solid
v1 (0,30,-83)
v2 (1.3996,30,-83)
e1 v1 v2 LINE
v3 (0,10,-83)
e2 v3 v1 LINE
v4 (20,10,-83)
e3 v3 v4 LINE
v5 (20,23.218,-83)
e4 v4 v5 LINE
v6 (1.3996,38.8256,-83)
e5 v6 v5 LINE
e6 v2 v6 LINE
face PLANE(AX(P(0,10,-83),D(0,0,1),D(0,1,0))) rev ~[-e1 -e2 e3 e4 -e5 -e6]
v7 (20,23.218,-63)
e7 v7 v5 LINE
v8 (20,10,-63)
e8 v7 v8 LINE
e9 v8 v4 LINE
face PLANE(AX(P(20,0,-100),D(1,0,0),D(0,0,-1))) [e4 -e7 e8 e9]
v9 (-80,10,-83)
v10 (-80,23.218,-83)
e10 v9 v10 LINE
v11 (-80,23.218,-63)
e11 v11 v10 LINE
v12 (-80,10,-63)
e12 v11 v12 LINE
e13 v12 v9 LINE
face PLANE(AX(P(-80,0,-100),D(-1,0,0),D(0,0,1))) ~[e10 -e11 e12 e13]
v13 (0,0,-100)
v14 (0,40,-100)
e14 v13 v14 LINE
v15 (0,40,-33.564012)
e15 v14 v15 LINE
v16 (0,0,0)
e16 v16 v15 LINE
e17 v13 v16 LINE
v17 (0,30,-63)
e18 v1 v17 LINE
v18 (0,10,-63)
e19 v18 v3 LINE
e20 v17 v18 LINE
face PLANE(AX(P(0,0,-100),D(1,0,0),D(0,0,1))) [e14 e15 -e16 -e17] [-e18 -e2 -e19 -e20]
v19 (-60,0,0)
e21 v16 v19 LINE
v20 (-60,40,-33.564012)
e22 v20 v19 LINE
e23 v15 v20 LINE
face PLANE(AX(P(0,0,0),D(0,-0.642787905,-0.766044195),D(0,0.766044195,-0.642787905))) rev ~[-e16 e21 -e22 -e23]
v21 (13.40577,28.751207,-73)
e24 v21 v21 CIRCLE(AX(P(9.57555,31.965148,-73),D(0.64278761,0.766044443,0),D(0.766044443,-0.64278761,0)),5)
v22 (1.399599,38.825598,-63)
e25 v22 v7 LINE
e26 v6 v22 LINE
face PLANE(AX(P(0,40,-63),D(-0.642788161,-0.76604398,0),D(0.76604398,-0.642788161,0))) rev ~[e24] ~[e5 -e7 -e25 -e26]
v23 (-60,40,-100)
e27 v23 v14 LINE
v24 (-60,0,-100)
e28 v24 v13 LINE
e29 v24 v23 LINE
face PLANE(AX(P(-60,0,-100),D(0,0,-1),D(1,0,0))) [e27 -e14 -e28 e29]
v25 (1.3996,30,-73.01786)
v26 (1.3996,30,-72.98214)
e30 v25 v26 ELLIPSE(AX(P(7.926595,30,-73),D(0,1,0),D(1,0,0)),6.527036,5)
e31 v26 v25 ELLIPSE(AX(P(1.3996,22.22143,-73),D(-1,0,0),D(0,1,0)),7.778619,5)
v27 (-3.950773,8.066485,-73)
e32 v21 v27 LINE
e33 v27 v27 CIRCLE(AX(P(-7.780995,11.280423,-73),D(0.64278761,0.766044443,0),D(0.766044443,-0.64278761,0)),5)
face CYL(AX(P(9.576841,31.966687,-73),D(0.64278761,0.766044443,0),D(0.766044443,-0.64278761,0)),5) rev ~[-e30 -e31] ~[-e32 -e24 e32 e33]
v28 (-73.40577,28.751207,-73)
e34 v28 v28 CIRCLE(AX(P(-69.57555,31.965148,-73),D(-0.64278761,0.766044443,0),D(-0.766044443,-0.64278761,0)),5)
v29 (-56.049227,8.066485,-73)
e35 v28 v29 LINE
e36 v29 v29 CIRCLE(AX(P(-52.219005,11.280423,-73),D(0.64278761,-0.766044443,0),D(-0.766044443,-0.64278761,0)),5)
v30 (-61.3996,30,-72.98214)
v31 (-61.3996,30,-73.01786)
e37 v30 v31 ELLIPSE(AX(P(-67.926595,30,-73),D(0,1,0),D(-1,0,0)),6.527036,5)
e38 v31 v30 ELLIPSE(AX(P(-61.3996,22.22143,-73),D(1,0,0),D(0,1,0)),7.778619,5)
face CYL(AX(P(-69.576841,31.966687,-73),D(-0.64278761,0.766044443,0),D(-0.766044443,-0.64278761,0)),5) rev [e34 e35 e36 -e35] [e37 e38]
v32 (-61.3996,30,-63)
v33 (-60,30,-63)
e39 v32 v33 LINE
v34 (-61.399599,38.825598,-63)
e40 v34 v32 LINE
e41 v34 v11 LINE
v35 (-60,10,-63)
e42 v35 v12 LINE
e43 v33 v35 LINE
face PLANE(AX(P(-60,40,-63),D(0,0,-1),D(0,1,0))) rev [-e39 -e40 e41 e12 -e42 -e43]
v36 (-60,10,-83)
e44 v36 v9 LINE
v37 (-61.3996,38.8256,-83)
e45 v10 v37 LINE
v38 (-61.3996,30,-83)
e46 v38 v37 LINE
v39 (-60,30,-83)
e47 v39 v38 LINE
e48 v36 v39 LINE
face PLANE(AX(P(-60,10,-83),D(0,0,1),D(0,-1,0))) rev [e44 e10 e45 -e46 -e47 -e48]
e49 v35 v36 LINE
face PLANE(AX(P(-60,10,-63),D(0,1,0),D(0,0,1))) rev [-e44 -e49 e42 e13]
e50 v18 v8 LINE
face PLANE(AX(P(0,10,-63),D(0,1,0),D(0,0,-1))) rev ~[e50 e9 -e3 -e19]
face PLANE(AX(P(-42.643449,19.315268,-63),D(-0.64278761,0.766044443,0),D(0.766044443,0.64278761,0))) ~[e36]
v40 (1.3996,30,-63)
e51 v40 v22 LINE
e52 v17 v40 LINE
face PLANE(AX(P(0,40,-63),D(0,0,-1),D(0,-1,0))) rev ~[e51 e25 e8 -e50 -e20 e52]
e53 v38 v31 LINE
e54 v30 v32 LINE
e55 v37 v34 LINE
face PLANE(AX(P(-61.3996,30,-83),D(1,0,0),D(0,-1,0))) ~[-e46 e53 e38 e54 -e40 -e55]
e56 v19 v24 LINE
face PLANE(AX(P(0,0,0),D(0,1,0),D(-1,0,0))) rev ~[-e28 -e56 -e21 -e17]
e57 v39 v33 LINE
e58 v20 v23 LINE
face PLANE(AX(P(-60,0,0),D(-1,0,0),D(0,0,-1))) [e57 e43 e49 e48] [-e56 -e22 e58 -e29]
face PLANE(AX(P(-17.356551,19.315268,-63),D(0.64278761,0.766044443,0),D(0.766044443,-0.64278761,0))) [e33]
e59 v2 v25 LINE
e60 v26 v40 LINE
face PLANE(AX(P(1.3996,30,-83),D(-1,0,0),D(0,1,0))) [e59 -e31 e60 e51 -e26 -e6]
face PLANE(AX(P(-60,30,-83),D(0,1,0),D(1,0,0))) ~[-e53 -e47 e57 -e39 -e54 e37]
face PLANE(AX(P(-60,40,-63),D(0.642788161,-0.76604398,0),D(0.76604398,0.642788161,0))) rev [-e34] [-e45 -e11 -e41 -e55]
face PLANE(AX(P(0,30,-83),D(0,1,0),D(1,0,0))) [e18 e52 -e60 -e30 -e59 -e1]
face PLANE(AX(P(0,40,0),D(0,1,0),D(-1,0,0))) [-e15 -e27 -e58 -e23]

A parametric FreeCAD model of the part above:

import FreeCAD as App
import Part
import Sketcher

V = App.Vector
Q = App.Units.Quantity

doc = App.newDocument("Part")
params = doc.addObject("Spreadsheet::Sheet", "Params")
for row, (alias, value) in enumerate([
    ("sketch1_height", "3.937 in"),
    ("pad1_length", "1.5748031 in"),
    ("pocket1_length", "2.7559055 in"),
    ("pad2_length", "0.7874016 in"),
    ("pocket2_length", "2.4311024 in"),
    ("pocket3_length", "1.0629921 in"),
    ("pocket4_length", "1.5059055 in"),
], start=1):
    params.set(f"A{row}", alias)
    params.set(f"B{row}", "=" + value)
    params.setAlias(f"B{row}", alias)

body = doc.addObject("PartDesign::Body", "Body")

# Sketch on XZ plane
sketch1 = body.newObject("Sketcher::SketchObject", "Sketch")
sketch1.AttachmentSupport = (doc.getObject("XZ_Plane"), [""])
sketch1.MapMode = "FlatFace"
sketch1.addGeometry(Part.LineSegment(V(-60, 0, 0), V(0, 0, 0)), False)
sketch1.addGeometry(Part.LineSegment(V(0, 0, 0), V(0, -100, 0)), False)
sketch1.addGeometry(Part.LineSegment(V(0, -100, 0), V(-60, -100, 0)), False)
sketch1.addGeometry(Part.LineSegment(V(-60, -100, 0), V(-60, 0, 0)), False)
sketch1.addConstraint(Sketcher.Constraint("Coincident", 0, 2, 1, 1))
sketch1.addConstraint(Sketcher.Constraint("Coincident", 1, 2, 2, 1))
sketch1.addConstraint(Sketcher.Constraint("Coincident", 2, 2, 3, 1))
sketch1.addConstraint(Sketcher.Constraint("Coincident", 3, 2, 0, 1))
sketch1.addConstraint(Sketcher.Constraint("Horizontal", 0))
sketch1.addConstraint(Sketcher.Constraint("Vertical", 1))
sketch1.addConstraint(Sketcher.Constraint("Horizontal", 2))
sketch1.addConstraint(Sketcher.Constraint("Vertical", 3))
sketch1.addConstraint(Sketcher.Constraint("Coincident", 0, 2, -1, 1))
sketch1.addConstraint(Sketcher.Constraint("DistanceY", 1, 2, 1, 1, Q("3.937 in")))
sketch1.addConstraint(Sketcher.Constraint("DistanceX", 0, 1, 0, 2, Q("2.3622 in")))
sketch1.setExpression("Constraints[9]", "Params.sketch1_height")
pad1 = body.newObject("PartDesign::Pad", "Pad")
pad1.Profile = sketch1
pad1.setExpression("Length", "Params.pad1_length")
pad1.Reversed = True

# Sketch on YZ plane
sketch2 = body.newObject("Sketcher::SketchObject", "Sketch001")
sketch2.AttachmentSupport = (doc.getObject("YZ_Plane"), [""])
sketch2.MapMode = "FlatFace"
sketch2.addGeometry(Part.LineSegment(V(40, 0, 0), V(0, 0, 0)), False)
sketch2.addGeometry(Part.LineSegment(V(0, 0, 0), V(40, -34, 0)), False)
sketch2.addGeometry(Part.LineSegment(V(40, -34, 0), V(40, 0, 0)), False)
sketch2.addConstraint(Sketcher.Constraint("Coincident", 0, 2, 1, 1))
sketch2.addConstraint(Sketcher.Constraint("Coincident", 1, 2, 2, 1))
sketch2.addConstraint(Sketcher.Constraint("Coincident", 2, 2, 0, 1))
sketch2.addConstraint(Sketcher.Constraint("Horizontal", 0))
sketch2.addConstraint(Sketcher.Constraint("Vertical", 2))
sketch2.addConstraint(Sketcher.Constraint("Coincident", 0, 2, -1, 1))
sketch2.addConstraint(Sketcher.Constraint("Angle", 1, Q("-40 deg")))
sketch2.addConstraint(Sketcher.Constraint("DistanceX", 0, 2, 0, 1, Q("1.5748 in")))
pocket1 = body.newObject("PartDesign::Pocket", "Pocket")
pocket1.Profile = sketch2
pocket1.setExpression("Length", "Params.pocket1_length")

# Sketch on YZ plane
sketch3 = body.newObject("Sketcher::SketchObject", "Sketch002")
sketch3.AttachmentSupport = (doc.getObject("YZ_Plane"), [""])
sketch3.MapMode = "FlatFace"
sketch3.addGeometry(Part.LineSegment(V(10, -83, 0), V(40, -83, 0)), False)
sketch3.addGeometry(Part.LineSegment(V(40, -83, 0), V(40, -63, 0)), False)
sketch3.addGeometry(Part.LineSegment(V(40, -63, 0), V(10, -63, 0)), False)
sketch3.addGeometry(Part.LineSegment(V(10, -63, 0), V(10, -83, 0)), False)
sketch3.addConstraint(Sketcher.Constraint("Coincident", 0, 2, 1, 1))
sketch3.addConstraint(Sketcher.Constraint("Coincident", 1, 2, 2, 1))
sketch3.addConstraint(Sketcher.Constraint("Coincident", 2, 2, 3, 1))
sketch3.addConstraint(Sketcher.Constraint("Coincident", 3, 2, 0, 1))
sketch3.addConstraint(Sketcher.Constraint("Horizontal", 0))
sketch3.addConstraint(Sketcher.Constraint("Vertical", 1))
sketch3.addConstraint(Sketcher.Constraint("Horizontal", 2))
sketch3.addConstraint(Sketcher.Constraint("Vertical", 3))
sketch3.addConstraint(Sketcher.Constraint("DistanceX", 0, 1, 0, 2, Q("1.1811 in")))
sketch3.addConstraint(Sketcher.Constraint("DistanceY", 1, 1, 1, 2, Q("0.7874 in")))
sketch3.addConstraint(Sketcher.Constraint("DistanceX", -1, 1, 0, 2, Q("1.5748 in")))
sketch3.addConstraint(Sketcher.Constraint("DistanceY", 0, 2, -1, 1, 83.0))
pad2 = body.newObject("PartDesign::Pad", "Pad001")
pad2.Profile = sketch3
pad2.setExpression("Length", "Params.pad2_length")

# Sketch on XY plane
sketch4 = body.newObject("Sketcher::SketchObject", "Sketch003")
sketch4.AttachmentSupport = (doc.getObject("XY_Plane"), [""])
sketch4.MapMode = "FlatFace"
sketch4.AttachmentOffset = App.Placement(V(0, 0, -63), App.Rotation())
sketch4.addGeometry(Part.LineSegment(V(20, 40, 0), V(0, 40, 0)), False)
sketch4.addGeometry(Part.LineSegment(V(0, 40, 0), V(20, 23, 0)), False)
sketch4.addGeometry(Part.LineSegment(V(20, 23, 0), V(20, 40, 0)), False)
sketch4.addConstraint(Sketcher.Constraint("Coincident", 0, 2, 1, 1))
sketch4.addConstraint(Sketcher.Constraint("Coincident", 1, 2, 2, 1))
sketch4.addConstraint(Sketcher.Constraint("Coincident", 2, 2, 0, 1))
sketch4.addConstraint(Sketcher.Constraint("Horizontal", 0))
sketch4.addConstraint(Sketcher.Constraint("Vertical", 2))
sketch4.addConstraint(Sketcher.Constraint("PointOnObject", 0, 2, -2))
sketch4.addConstraint(Sketcher.Constraint("Angle", 1, Q("-40 deg")))
sketch4.addConstraint(Sketcher.Constraint("DistanceY", -1, 1, 0, 2, Q("1.5748 in")))
sketch4.addConstraint(Sketcher.Constraint("DistanceX", 0, 2, 0, 1, Q("0.7874 in")))
pocket2 = body.newObject("PartDesign::Pocket", "Pocket001")
pocket2.Profile = sketch4
pocket2.setExpression("Length", "Params.pocket2_length")
doc.recompute()

datumplane = body.newObject("PartDesign::Plane", "DatumPlane")
datumplane.AttachmentSupport = (doc.getObject("YZ_Plane"), [""])
datumplane.MapMode = "FlatFace"
datumplane.AttachmentOffset = App.Placement(V(0, 0, -1.1811024 * 25.4), App.Rotation())
mirrored = body.newObject("PartDesign::Mirrored", "Mirrored")
mirrored.Originals = [pad2, pocket2]
mirrored.MirrorPlane = (datumplane, [""])
body.Tip = mirrored

# Sketch on an angled plane
sketch5 = body.newObject("Sketcher::SketchObject", "Sketch004")
sketch5.Placement = App.Placement(V(0, 40, -63), App.Rotation(V(0.766044443, -0.64278761, 0), V(0, 0, -1), V(0.64278761, 0.766044443, 0), "ZXY"))
sketch5.addGeometry(Part.Circle(V(13, 10, 0), V(0, 0, 1), 5), False)
sketch5.addConstraint(Sketcher.Constraint("Diameter", 0, Q("0.3937 in")))
sketch5.addConstraint(Sketcher.Constraint("DistanceY", -1, 1, 0, 3, Q("0.3937 in")))
sketch5.addConstraint(Sketcher.Constraint("DistanceX", -1, 1, 0, 3, 12.5))
pocket3 = body.newObject("PartDesign::Pocket", "Pocket002")
pocket3.Profile = sketch5
pocket3.setExpression("Length", "Params.pocket3_length")
doc.recompute()

datumplane2 = body.newObject("PartDesign::Plane", "DatumPlane001")
datumplane2.AttachmentSupport = (doc.getObject("YZ_Plane"), [""])
datumplane2.MapMode = "FlatFace"
datumplane2.AttachmentOffset = App.Placement(V(0, 0, -1.1811024 * 25.4), App.Rotation())
mirrored2 = body.newObject("PartDesign::Mirrored", "Mirrored001")
mirrored2.Originals = [pocket3]
mirrored2.MirrorPlane = (datumplane2, [""])
body.Tip = mirrored2

# Sketch on XY plane
sketch6 = body.newObject("Sketcher::SketchObject", "Sketch005")
sketch6.AttachmentSupport = (doc.getObject("XY_Plane"), [""])
sketch6.MapMode = "FlatFace"
sketch6.AttachmentOffset = App.Placement(V(0, 0, -83), App.Rotation())
sketch6.addGeometry(Part.LineSegment(V(0, 30, 0), V(0, 40, 0)), False)
sketch6.addGeometry(Part.LineSegment(V(0, 40, 0), V(1.4, 38.8, 0)), False)
sketch6.addGeometry(Part.LineSegment(V(1.4, 38.8, 0), V(1.4, 30, 0)), False)
sketch6.addGeometry(Part.LineSegment(V(1.4, 30, 0), V(0, 30, 0)), False)
sketch6.addConstraint(Sketcher.Constraint("Coincident", 0, 2, 1, 1))
sketch6.addConstraint(Sketcher.Constraint("Coincident", 1, 2, 2, 1))
sketch6.addConstraint(Sketcher.Constraint("Coincident", 2, 2, 3, 1))
sketch6.addConstraint(Sketcher.Constraint("Coincident", 3, 2, 0, 1))
sketch6.addConstraint(Sketcher.Constraint("Vertical", 0))
sketch6.addConstraint(Sketcher.Constraint("Vertical", 2))
sketch6.addConstraint(Sketcher.Constraint("Horizontal", 3))
sketch6.addConstraint(Sketcher.Constraint("PointOnObject", 0, 2, -2))
sketch6.addConstraint(Sketcher.Constraint("DistanceY", 0, 1, 0, 2, Q("0.3937 in")))
sketch6.addConstraint(Sketcher.Constraint("Angle", 1, Q("-40 deg")))
sketch6.addConstraint(Sketcher.Constraint("DistanceX", 3, 2, 3, 1, Q("0.0551 in")))
sketch6.addConstraint(Sketcher.Constraint("DistanceY", -1, 1, 0, 2, Q("1.5748 in")))
pocket4 = body.newObject("PartDesign::Pocket", "Pocket003")
pocket4.Profile = sketch6
pocket4.setExpression("Length", "Params.pocket4_length")
pocket4.Reversed = True
doc.recompute()

datumplane3 = body.newObject("PartDesign::Plane", "DatumPlane002")
datumplane3.AttachmentSupport = (doc.getObject("YZ_Plane"), [""])
datumplane3.MapMode = "FlatFace"
datumplane3.AttachmentOffset = App.Placement(V(0, 0, -1.1811024 * 25.4), App.Rotation())
mirrored3 = body.newObject("PartDesign::Mirrored", "Mirrored002")
mirrored3.Originals = [pocket4]
mirrored3.MirrorPlane = (datumplane3, [""])
body.Tip = mirrored3

doc.recompute()
